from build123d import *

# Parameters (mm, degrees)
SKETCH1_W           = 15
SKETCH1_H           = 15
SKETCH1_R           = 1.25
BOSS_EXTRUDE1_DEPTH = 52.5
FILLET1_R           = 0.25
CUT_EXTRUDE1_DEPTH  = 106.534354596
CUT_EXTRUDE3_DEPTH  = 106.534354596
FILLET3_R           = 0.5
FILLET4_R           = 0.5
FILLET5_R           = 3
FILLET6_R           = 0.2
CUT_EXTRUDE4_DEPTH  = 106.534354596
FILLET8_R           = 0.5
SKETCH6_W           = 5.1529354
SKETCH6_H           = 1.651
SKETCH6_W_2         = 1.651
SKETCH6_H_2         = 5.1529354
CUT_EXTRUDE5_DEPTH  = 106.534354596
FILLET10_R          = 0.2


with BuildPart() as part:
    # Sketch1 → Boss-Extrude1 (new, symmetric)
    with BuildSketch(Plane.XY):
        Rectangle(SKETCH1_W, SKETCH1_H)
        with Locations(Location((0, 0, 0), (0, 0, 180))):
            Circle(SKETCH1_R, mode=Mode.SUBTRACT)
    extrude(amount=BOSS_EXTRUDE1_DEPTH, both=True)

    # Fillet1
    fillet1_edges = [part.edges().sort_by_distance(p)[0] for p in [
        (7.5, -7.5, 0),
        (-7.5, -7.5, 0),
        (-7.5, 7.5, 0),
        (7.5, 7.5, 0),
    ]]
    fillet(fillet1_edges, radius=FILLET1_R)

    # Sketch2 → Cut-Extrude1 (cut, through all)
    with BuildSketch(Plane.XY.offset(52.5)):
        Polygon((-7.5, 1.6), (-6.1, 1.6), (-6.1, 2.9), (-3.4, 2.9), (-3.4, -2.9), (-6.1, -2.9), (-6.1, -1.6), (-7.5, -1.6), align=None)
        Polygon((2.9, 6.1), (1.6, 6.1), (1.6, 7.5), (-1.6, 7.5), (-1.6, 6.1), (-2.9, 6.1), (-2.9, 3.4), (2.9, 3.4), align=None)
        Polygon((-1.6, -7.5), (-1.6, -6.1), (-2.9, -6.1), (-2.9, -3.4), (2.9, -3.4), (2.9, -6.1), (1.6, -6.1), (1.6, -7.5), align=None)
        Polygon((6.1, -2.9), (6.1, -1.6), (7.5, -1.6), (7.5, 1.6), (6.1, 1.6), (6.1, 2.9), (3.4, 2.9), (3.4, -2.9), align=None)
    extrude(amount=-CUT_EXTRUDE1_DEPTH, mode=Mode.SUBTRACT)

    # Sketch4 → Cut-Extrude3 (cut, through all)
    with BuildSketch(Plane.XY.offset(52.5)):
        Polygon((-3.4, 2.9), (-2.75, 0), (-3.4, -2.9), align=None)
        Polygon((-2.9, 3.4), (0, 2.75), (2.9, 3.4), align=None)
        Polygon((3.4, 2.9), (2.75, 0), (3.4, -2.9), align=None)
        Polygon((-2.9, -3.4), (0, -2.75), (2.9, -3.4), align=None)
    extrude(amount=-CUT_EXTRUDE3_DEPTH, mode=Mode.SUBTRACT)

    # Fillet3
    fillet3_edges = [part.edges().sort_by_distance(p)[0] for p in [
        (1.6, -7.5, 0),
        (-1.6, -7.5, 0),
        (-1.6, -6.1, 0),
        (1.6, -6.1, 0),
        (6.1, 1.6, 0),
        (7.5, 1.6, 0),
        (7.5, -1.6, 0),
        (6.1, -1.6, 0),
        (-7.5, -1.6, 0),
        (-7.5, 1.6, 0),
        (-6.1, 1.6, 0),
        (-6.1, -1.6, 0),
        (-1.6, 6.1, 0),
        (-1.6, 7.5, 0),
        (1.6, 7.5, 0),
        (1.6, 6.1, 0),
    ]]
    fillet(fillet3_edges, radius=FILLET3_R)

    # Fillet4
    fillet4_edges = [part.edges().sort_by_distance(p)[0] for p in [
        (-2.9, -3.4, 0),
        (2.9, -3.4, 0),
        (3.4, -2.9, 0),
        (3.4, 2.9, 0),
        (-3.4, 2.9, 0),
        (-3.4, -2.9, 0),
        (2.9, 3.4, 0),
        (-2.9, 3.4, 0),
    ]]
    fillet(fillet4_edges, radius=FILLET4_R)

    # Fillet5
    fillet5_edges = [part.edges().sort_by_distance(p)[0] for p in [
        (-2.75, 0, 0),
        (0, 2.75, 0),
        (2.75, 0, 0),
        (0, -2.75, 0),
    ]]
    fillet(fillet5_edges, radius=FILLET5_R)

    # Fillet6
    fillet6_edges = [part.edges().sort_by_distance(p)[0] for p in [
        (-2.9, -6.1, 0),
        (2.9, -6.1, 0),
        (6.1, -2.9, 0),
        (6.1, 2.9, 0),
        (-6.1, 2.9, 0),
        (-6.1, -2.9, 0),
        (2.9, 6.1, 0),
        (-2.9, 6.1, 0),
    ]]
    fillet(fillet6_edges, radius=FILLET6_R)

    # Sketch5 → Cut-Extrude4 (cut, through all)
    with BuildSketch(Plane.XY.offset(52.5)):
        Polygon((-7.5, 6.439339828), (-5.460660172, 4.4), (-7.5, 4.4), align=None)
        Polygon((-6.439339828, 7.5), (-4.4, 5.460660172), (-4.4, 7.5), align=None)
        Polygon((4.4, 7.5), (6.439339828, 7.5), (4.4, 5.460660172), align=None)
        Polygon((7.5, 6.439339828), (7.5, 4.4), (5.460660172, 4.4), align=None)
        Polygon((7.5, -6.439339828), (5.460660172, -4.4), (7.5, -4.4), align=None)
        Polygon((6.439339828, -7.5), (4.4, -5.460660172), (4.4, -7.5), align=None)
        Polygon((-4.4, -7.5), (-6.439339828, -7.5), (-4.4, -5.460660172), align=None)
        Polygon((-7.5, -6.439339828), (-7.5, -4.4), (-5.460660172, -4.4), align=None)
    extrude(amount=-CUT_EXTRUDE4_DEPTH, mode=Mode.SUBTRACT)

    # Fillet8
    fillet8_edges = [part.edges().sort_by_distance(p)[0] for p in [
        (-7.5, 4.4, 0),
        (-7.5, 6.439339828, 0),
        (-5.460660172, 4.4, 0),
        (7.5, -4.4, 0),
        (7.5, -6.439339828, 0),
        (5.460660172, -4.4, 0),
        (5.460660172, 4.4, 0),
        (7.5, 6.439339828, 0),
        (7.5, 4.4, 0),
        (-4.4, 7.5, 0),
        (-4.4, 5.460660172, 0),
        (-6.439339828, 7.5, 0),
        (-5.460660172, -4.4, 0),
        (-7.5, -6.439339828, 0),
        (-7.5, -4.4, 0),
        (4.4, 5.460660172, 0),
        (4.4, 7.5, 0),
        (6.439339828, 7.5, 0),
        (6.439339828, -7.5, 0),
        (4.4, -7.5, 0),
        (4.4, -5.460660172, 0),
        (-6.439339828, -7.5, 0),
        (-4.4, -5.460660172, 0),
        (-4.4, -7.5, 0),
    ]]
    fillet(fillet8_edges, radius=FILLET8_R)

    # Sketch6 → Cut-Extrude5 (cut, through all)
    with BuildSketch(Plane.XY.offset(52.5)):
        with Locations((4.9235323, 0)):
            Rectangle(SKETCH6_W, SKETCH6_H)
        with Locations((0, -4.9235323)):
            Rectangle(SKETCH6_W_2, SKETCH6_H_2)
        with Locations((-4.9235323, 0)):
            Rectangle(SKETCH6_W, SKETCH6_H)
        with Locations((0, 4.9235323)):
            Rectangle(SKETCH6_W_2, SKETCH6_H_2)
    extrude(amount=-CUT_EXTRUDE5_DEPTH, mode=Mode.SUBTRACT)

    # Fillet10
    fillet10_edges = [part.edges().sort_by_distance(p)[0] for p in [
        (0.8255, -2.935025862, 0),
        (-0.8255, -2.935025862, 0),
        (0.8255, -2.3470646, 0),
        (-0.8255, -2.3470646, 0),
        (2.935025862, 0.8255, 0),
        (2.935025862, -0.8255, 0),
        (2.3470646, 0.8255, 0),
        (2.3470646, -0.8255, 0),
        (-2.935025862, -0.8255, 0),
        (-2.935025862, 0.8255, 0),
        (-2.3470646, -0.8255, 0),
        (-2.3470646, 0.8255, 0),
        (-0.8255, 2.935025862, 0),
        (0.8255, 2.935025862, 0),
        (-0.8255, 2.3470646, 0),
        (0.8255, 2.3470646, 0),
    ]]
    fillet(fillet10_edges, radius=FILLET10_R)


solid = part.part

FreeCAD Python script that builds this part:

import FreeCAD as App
import Part
import Sketcher

V = App.Vector
Q = App.Units.Quantity


def edges_at(feature, points):
    """Names of the edges that pass closest to the given points."""
    edges = feature.Shape.Edges
    near = lambda p: min(range(len(edges)), key=lambda i: edges[i].distToShape(Part.Vertex(*p))[0])
    return sorted({f"Edge{near(p) + 1}" for p in points})


def add_polygon(sketch, points):
    """Adds a closed chain of lines whose ends are joined by coincident constraints."""
    first, n = sketch.GeometryCount, len(points)
    for a, b in zip(points, points[1:] + points[:1]):
        sketch.addGeometry(Part.LineSegment(App.Vector(*a, 0), App.Vector(*b, 0)), False)
    for i in range(n):
        sketch.addConstraint(Sketcher.Constraint("Coincident", first + i, 2, first + (i + 1) % n, 1))

doc = App.newDocument("Part")
params = doc.addObject("Spreadsheet::Sheet", "Params")
for row, (alias, value) in enumerate([
    ("sketch1_diameter", "2.5 mm"),
    ("sketch1_width", "15 mm"),
    ("pad1_length", "105 mm"),
    ("fillet_radius", "0.25 mm"),
    ("sketch2_width", "1.4 mm"),
    ("sketch2_width2", "2.7 mm"),
    ("sketch2_width3", "1.3 mm"),
    ("sketch2_width4", "3.2 mm"),
    ("sketch3_width", "5.8 mm"),
    ("fillet2_radius", "0.5 mm"),
    ("fillet3_radius", "0.5 mm"),
    ("fillet4_radius", "3 mm"),
    ("fillet5_radius", "0.2 mm"),
    ("fillet6_radius", "0.5 mm"),
    ("fillet7_radius", "0.2 mm"),
], start=1):
    params.set(f"A{row}", alias)
    params.set(f"B{row}", "=" + value)
    params.setAlias(f"B{row}", alias)

body = doc.addObject("PartDesign::Body", "Body")

# Sketch on XY plane
sketch1 = doc.addObject("Sketcher::SketchObject", "Sketch")
body.addObject(sketch1)
sketch1.AttachmentSupport = (doc.XY_Plane, [""])
sketch1.MapMode = "FlatFace"
add_polygon(sketch1, [(-7.5, 7.5), (-7.5, -7.5), (7.5, -7.5), (7.5, 7.5)])  # lines 0-3
sketch1.addGeometry(Part.Circle(V(0, 0, 0), V(0, 0, 1), 1.25), False)  # 4
sketch1.addConstraint(Sketcher.Constraint("Vertical", 0))
sketch1.addConstraint(Sketcher.Constraint("Horizontal", 1))
sketch1.addConstraint(Sketcher.Constraint("Vertical", 2))
sketch1.addConstraint(Sketcher.Constraint("Horizontal", 3))
sketch1.addConstraint(Sketcher.Constraint("Coincident", 4, 3, -1, 1))
sketch1.addConstraint(Sketcher.Constraint("Symmetric", 0, 2, 2, 2, -1, 1))
sketch1.addConstraint(Sketcher.Constraint("Equal", 3, 0))
sketch1.addConstraint(Sketcher.Constraint("Diameter", 4, Q("2.5 mm")))
sketch1.addConstraint(Sketcher.Constraint("DistanceX", 1, 1, 1, 2, Q("15 mm")))
sketch1.setExpression("Constraints[11]", "Params.sketch1_diameter")
sketch1.setExpression("Constraints[12]", "Params.sketch1_width")
pad1 = doc.addObject("PartDesign::Pad", "Pad")
body.addObject(pad1)
pad1.Profile = sketch1
pad1.setExpression("Length", "Params.pad1_length")
pad1.Midplane = True
doc.recompute()

fillet = doc.addObject("PartDesign::Fillet", "Fillet")
body.addObject(fillet)
fillet.Base = (pad1, edges_at(pad1, [
    (7.5, -7.5, 0),
    (-7.5, -7.5, 0),
    (-7.5, 7.5, 0),
    (7.5, 7.5, 0),
]))
fillet.setExpression("Radius", "Params.fillet_radius")

# Sketch on XY plane
sketch2 = doc.addObject("Sketcher::SketchObject", "Sketch001")
body.addObject(sketch2)
sketch2.AttachmentSupport = (doc.XY_Plane, [""])
sketch2.MapMode = "FlatFace"
sketch2.AttachmentOffset = App.Placement(V(0, 0, 52.5), App.Rotation())
add_polygon(sketch2, [(-6.1, 1.6), (-7.5, 1.6), (-7.5, -1.6), (-6.1, -1.6), (-6.1, -2.9), (-3.4, -2.9), (-3.4, 2.9), (-6.1, 2.9)])  # lines 0-7
add_polygon(sketch2, [(2.9, 6.1), (1.6, 6.1), (1.6, 7.5), (-1.6, 7.5), (-1.6, 6.1), (-2.9, 6.1), (-2.9, 3.4), (2.9, 3.4)])  # lines 8-15
add_polygon(sketch2, [(-1.6, -6.1), (-1.6, -7.5), (1.6, -7.5), (1.6, -6.1), (2.9, -6.1), (2.9, -3.4), (-2.9, -3.4), (-2.9, -6.1)])  # lines 16-23
add_polygon(sketch2, [(6.1, -2.9), (6.1, -1.6), (7.5, -1.6), (7.5, 1.6), (6.1, 1.6), (6.1, 2.9), (3.4, 2.9), (3.4, -2.9)])  # lines 24-31
sketch2.addConstraint(Sketcher.Constraint("Horizontal", 0))
sketch2.addConstraint(Sketcher.Constraint("Vertical", 1))
sketch2.addConstraint(Sketcher.Constraint("Horizontal", 2))
sketch2.addConstraint(Sketcher.Constraint("Vertical", 3))
sketch2.addConstraint(Sketcher.Constraint("Horizontal", 4))
sketch2.addConstraint(Sketcher.Constraint("Vertical", 5))
sketch2.addConstraint(Sketcher.Constraint("Horizontal", 6))
sketch2.addConstraint(Sketcher.Constraint("Vertical", 7))
sketch2.addConstraint(Sketcher.Constraint("Horizontal", 8))
sketch2.addConstraint(Sketcher.Constraint("Vertical", 9))
sketch2.addConstraint(Sketcher.Constraint("Horizontal", 10))
sketch2.addConstraint(Sketcher.Constraint("Vertical", 11))
sketch2.addConstraint(Sketcher.Constraint("Horizontal", 12))
sketch2.addConstraint(Sketcher.Constraint("Vertical", 13))
sketch2.addConstraint(Sketcher.Constraint("Horizontal", 14))
sketch2.addConstraint(Sketcher.Constraint("Vertical", 15))
sketch2.addConstraint(Sketcher.Constraint("Vertical", 16))
sketch2.addConstraint(Sketcher.Constraint("Horizontal", 17))
sketch2.addConstraint(Sketcher.Constraint("Vertical", 18))
sketch2.addConstraint(Sketcher.Constraint("Horizontal", 19))
sketch2.addConstraint(Sketcher.Constraint("Vertical", 20))
sketch2.addConstraint(Sketcher.Constraint("Horizontal", 21))
sketch2.addConstraint(Sketcher.Constraint("Vertical", 22))
sketch2.addConstraint(Sketcher.Constraint("Horizontal", 23))
sketch2.addConstraint(Sketcher.Constraint("Vertical", 24))
sketch2.addConstraint(Sketcher.Constraint("Horizontal", 25))
sketch2.addConstraint(Sketcher.Constraint("Vertical", 26))
sketch2.addConstraint(Sketcher.Constraint("Horizontal", 27))
sketch2.addConstraint(Sketcher.Constraint("Vertical", 28))
sketch2.addConstraint(Sketcher.Constraint("Horizontal", 29))
sketch2.addConstraint(Sketcher.Constraint("Vertical", 30))
sketch2.addConstraint(Sketcher.Constraint("Horizontal", 31))
sketch2.addConstraint(Sketcher.Constraint("Symmetric", 9, 2, 16, 2, -1, 1))
sketch2.addConstraint(Sketcher.Constraint("Symmetric", 11, 2, 18, 2, -1, 1))
sketch2.addConstraint(Sketcher.Constraint("Symmetric", 13, 2, 20, 2, -1, 1))
sketch2.addConstraint(Sketcher.Constraint("Symmetric", 15, 2, 22, 2, -1, 1))
sketch2.addConstraint(Sketcher.Constraint("Symmetric", 7, 2, 24, 2, -1, 1))
sketch2.addConstraint(Sketcher.Constraint("Symmetric", 1, 2, 26, 2, -1, 1))
sketch2.addConstraint(Sketcher.Constraint("Symmetric", 3, 2, 28, 2, -1, 1))
sketch2.addConstraint(Sketcher.Constraint("Symmetric", 5, 2, 30, 2, -1, 1))
sketch2.addConstraint(Sketcher.Constraint("Symmetric", 8, 2, 11, 2, -2))
sketch2.addConstraint(Sketcher.Constraint("Symmetric", 2, 2, 24, 2, -2))
sketch2.addConstraint(Sketcher.Constraint("Horizontal", 6, 2, 28, 2))
sketch2.addConstraint(Sketcher.Constraint("Vertical", 15, 2, 19, 2))
sketch2.addConstraint(Sketcher.Constraint("Equal", 17, 1))
sketch2.addConstraint(Sketcher.Constraint("Equal", 23, 3))
sketch2.addConstraint(Sketcher.Constraint("Equal", 27, 9))
sketch2.addConstraint(Sketcher.Constraint("Equal", 31, 13))
sketch2.addConstraint(Sketcher.Constraint("DistanceX", 0, 2, 0, 1, Q("1.4 mm")))
sketch2.addConstraint(Sketcher.Constraint("DistanceX", 4, 1, 4, 2, Q("2.7 mm")))
sketch2.addConstraint(Sketcher.Constraint("DistanceX", 8, 2, 8, 1, Q("1.3 mm")))
sketch2.addConstraint(Sketcher.Constraint("DistanceX", 10, 2, 10, 1, Q("3.2 mm")))
sketch2.addConstraint(Sketcher.Constraint("DistanceX", 5, 2, 8, 2, Q("5 mm")))
sketch2.addConstraint(Sketcher.Constraint("DistanceY", 4, 2, 8, 2, Q("9 mm")))
sketch2.setExpression("Constraints[80]", "Params.sketch2_width")
sketch2.setExpression("Constraints[81]", "Params.sketch2_width2")
sketch2.setExpression("Constraints[82]", "Params.sketch2_width3")
sketch2.setExpression("Constraints[83]", "Params.sketch2_width4")
pocket1 = doc.addObject("PartDesign::Pocket", "Pocket")
body.addObject(pocket1)
pocket1.Profile = sketch2
pocket1.Type = "ThroughAll"

# Sketch on XY plane
sketch3 = doc.addObject("Sketcher::SketchObject", "Sketch002")
body.addObject(sketch3)
sketch3.AttachmentSupport = (doc.XY_Plane, [""])
sketch3.MapMode = "FlatFace"
sketch3.AttachmentOffset = App.Placement(V(0, 0, 52.5), App.Rotation())
add_polygon(sketch3, [(-2.75, 0), (-3.4, 2.9), (-3.4, -2.9)])  # lines 0-2
add_polygon(sketch3, [(-2.9, 3.4), (0, 2.75), (2.9, 3.4)])  # lines 3-5
add_polygon(sketch3, [(3.4, 2.9), (2.75, 0), (3.4, -2.9)])  # lines 6-8
add_polygon(sketch3, [(0, -2.75), (-2.9, -3.4), (2.9, -3.4)])  # lines 9-11
sketch3.addConstraint(Sketcher.Constraint("Vertical", 1))
sketch3.addConstraint(Sketcher.Constraint("Horizontal", 5))
sketch3.addConstraint(Sketcher.Constraint("Vertical", 8))
sketch3.addConstraint(Sketcher.Constraint("Horizontal", 10))
sketch3.addConstraint(Sketcher.Constraint("Symmetric", 2, 2, 6, 2, -1, 1))
sketch3.addConstraint(Sketcher.Constraint("Symmetric", 0, 2, 7, 2, -1, 1))
sketch3.addConstraint(Sketcher.Constraint("Symmetric", 4, 2, 9, 2, -1, 1))
sketch3.addConstraint(Sketcher.Constraint("Symmetric", 3, 2, 11, 2, -1, 1))
sketch3.addConstraint(Sketcher.Constraint("PointOnObject", 2, 2, -1))
sketch3.addConstraint(Sketcher.Constraint("PointOnObject", 3, 2, -2))
sketch3.addConstraint(Sketcher.Constraint("Perpendicular", 2, 3))
sketch3.addConstraint(Sketcher.Constraint("Perpendicular", 0, 4))
sketch3.addConstraint(Sketcher.Constraint("Perpendicular", 3, 6))
sketch3.addConstraint(Sketcher.Constraint("Perpendicular", 6, 11))
sketch3.addConstraint(Sketcher.Constraint("Horizontal", 1, 2, 7, 2))
sketch3.addConstraint(Sketcher.Constraint("Equal", 10, 1))
sketch3.addConstraint(Sketcher.Constraint("DistanceX", 5, 2, 5, 1, Q("5.8 mm")))
sketch3.addConstraint(Sketcher.Constraint("DistanceX", 0, 2, -1, 1, Q("3.4 mm")))
sketch3.addConstraint(Sketcher.Constraint("DistanceY", -1, 1, 4, 2, Q("3.4 mm")))
sketch3.addConstraint(Sketcher.Constraint("DistanceX", 2, 2, 6, 2, Q("5.5 mm")))
sketch3.setExpression("Constraints[28]", "Params.sketch3_width")
pocket2 = doc.addObject("PartDesign::Pocket", "Pocket001")
body.addObject(pocket2)
pocket2.Profile = sketch3
pocket2.Type = "ThroughAll"
doc.recompute()

fillet2 = doc.addObject("PartDesign::Fillet", "Fillet001")
body.addObject(fillet2)
fillet2.Base = (pocket2, edges_at(pocket2, [
    (1.6, -7.5, 0),
    (-1.6, -7.5, 0),
    (-1.6, -6.1, 0),
    (1.6, -6.1, 0),
    (6.1, 1.6, 0),
    (7.5, 1.6, 0),
    (7.5, -1.6, 0),
    (6.1, -1.6, 0),
    (-7.5, -1.6, 0),
    (-7.5, 1.6, 0),
    (-6.1, 1.6, 0),
    (-6.1, -1.6, 0),
    (-1.6, 6.1, 0),
    (-1.6, 7.5, 0),
    (1.6, 7.5, 0),
    (1.6, 6.1, 0),
]))
fillet2.setExpression("Radius", "Params.fillet2_radius")
doc.recompute()

fillet3 = doc.addObject("PartDesign::Fillet", "Fillet002")
body.addObject(fillet3)
fillet3.Base = (fillet2, edges_at(fillet2, [
    (-2.9, -3.4, 0),
    (2.9, -3.4, 0),
    (3.4, -2.9, 0),
    (3.4, 2.9, 0),
    (-3.4, 2.9, 0),
    (-3.4, -2.9, 0),
    (2.9, 3.4, 0),
    (-2.9, 3.4, 0),
]))
fillet3.setExpression("Radius", "Params.fillet3_radius")
doc.recompute()

fillet4 = doc.addObject("PartDesign::Fillet", "Fillet003")
body.addObject(fillet4)
fillet4.Base = (fillet3, edges_at(fillet3, [
    (-2.75, 0, 0),
    (0, 2.75, 0),
    (2.75, 0, 0),
    (0, -2.75, 0),
]))
fillet4.setExpression("Radius", "Params.fillet4_radius")
doc.recompute()

fillet5 = doc.addObject("PartDesign::Fillet", "Fillet004")
body.addObject(fillet5)
fillet5.Base = (fillet4, edges_at(fillet4, [
    (-2.9, -6.1, 0),
    (2.9, -6.1, 0),
    (6.1, -2.9, 0),
    (6.1, 2.9, 0),
    (-6.1, 2.9, 0),
    (-6.1, -2.9, 0),
    (2.9, 6.1, 0),
    (-2.9, 6.1, 0),
]))
fillet5.setExpression("Radius", "Params.fillet5_radius")

# Sketch on XY plane
sketch4 = doc.addObject("Sketcher::SketchObject", "Sketch003")
body.addObject(sketch4)
sketch4.AttachmentSupport = (doc.XY_Plane, [""])
sketch4.MapMode = "FlatFace"
sketch4.AttachmentOffset = App.Placement(V(0, 0, 52.5), App.Rotation())
add_polygon(sketch4, [(-5.46066, 4.4), (-7.5, 6.43934), (-7.5, 4.4)])  # lines 0-2
add_polygon(sketch4, [(-6.43934, 7.5), (-4.4, 5.46066), (-4.4, 7.5)])  # lines 3-5
add_polygon(sketch4, [(6.43934, 7.5), (4.4, 7.5), (4.4, 5.46066)])  # lines 6-8
add_polygon(sketch4, [(7.5, 4.4), (7.5, 6.43934), (5.46066, 4.4)])  # lines 9-11
add_polygon(sketch4, [(5.46066, -4.4), (7.5, -6.43934), (7.5, -4.4)])  # lines 12-14
add_polygon(sketch4, [(6.43934, -7.5), (4.4, -5.46066), (4.4, -7.5)])  # lines 15-17
add_polygon(sketch4, [(-6.43934, -7.5), (-4.4, -7.5), (-4.4, -5.46066)])  # lines 18-20
add_polygon(sketch4, [(-7.5, -4.4), (-7.5, -6.43934), (-5.46066, -4.4)])  # lines 21-23
sketch4.addConstraint(Sketcher.Constraint("Vertical", 1))
sketch4.addConstraint(Sketcher.Constraint("Horizontal", 2))
sketch4.addConstraint(Sketcher.Constraint("Vertical", 4))
sketch4.addConstraint(Sketcher.Constraint("Horizontal", 5))
sketch4.addConstraint(Sketcher.Constraint("Horizontal", 6))
sketch4.addConstraint(Sketcher.Constraint("Vertical", 7))
sketch4.addConstraint(Sketcher.Constraint("Vertical", 9))
sketch4.addConstraint(Sketcher.Constraint("Horizontal", 11))
sketch4.addConstraint(Sketcher.Constraint("Vertical", 13))
sketch4.addConstraint(Sketcher.Constraint("Horizontal", 14))
sketch4.addConstraint(Sketcher.Constraint("Vertical", 16))
sketch4.addConstraint(Sketcher.Constraint("Horizontal", 17))
sketch4.addConstraint(Sketcher.Constraint("Horizontal", 18))
sketch4.addConstraint(Sketcher.Constraint("Vertical", 19))
sketch4.addConstraint(Sketcher.Constraint("Vertical", 21))
sketch4.addConstraint(Sketcher.Constraint("Horizontal", 23))
sketch4.addConstraint(Sketcher.Constraint("Symmetric", 0, 2, 12, 2, -1, 1))
sketch4.addConstraint(Sketcher.Constraint("Symmetric", 2, 2, 14, 2, -1, 1))
sketch4.addConstraint(Sketcher.Constraint("Symmetric", 3, 2, 15, 2, -1, 1))
sketch4.addConstraint(Sketcher.Constraint("Symmetric", 5, 2, 17, 2, -1, 1))
sketch4.addConstraint(Sketcher.Constraint("Symmetric", 6, 2, 18, 2, -1, 1))
sketch4.addConstraint(Sketcher.Constraint("Symmetric", 9, 2, 21, 2, -1, 1))
sketch4.addConstraint(Sketcher.Constraint("Symmetric", 10, 2, 22, 2, -1, 1))
sketch4.addConstraint(Sketcher.Constraint("Symmetric", 4, 2, 6, 2, -2))
sketch4.addConstraint(Sketcher.Constraint("Symmetric", 0, 2, 9, 2, -2))
sketch4.addConstraint(Sketcher.Constraint("Symmetric", 2, 2, 10, 2, -2))
sketch4.addConstraint(Sketcher.Constraint("Parallel", 0, 3))
sketch4.addConstraint(Sketcher.Constraint("Perpendicular", 3, 8))
sketch4.addConstraint(Sketcher.Constraint("Parallel", 8, 10))
sketch4.addConstraint(Sketcher.Constraint("Perpendicular", 15, 20))
sketch4.addConstraint(Sketcher.Constraint("Horizontal", 3, 2, 7, 2))
sketch4.addConstraint(Sketcher.Constraint("Horizontal", 15, 2, 19, 2))
sketch4.addConstraint(Sketcher.Constraint("Equal", 2, 5))
sketch4.addConstraint(Sketcher.Constraint("DistanceX", 0, 2, -1, 1, Q("7.5 mm")))
sketch4.addConstraint(Sketcher.Constraint("DistanceY", -1, 1, 1, 2, Q("4.4 mm")))
sketch4.addConstraint(Sketcher.Constraint("DistanceX", 3, 2, -1, 1, Q("4.4 mm")))
sketch4.addConstraint(Sketcher.Constraint("DistanceY", -1, 1, 4, 2, Q("7.5 mm")))
sketch4.addConstraint(Sketcher.Constraint("DistanceX", 2, 1, 2, 2, Q("2.03934 mm")))
pocket3 = doc.addObject("PartDesign::Pocket", "Pocket002")
body.addObject(pocket3)
pocket3.Profile = sketch4
pocket3.Type = "ThroughAll"
doc.recompute()

fillet6 = doc.addObject("PartDesign::Fillet", "Fillet005")
body.addObject(fillet6)
fillet6.Base = (pocket3, edges_at(pocket3, [
    (-7.5, 4.4, 0),
    (-7.5, 6.439, 0),
    (-5.461, 4.4, 0),
    (7.5, -4.4, 0),
    (7.5, -6.439, 0),
    (5.461, -4.4, 0),
    (5.461, 4.4, 0),
    (7.5, 6.439, 0),
    (7.5, 4.4, 0),
    (-4.4, 7.5, 0),
    (-4.4, 5.461, 0),
    (-6.439, 7.5, 0),
    (-5.461, -4.4, 0),
    (-7.5, -6.439, 0),
    (-7.5, -4.4, 0),
    (4.4, 5.461, 0),
    (4.4, 7.5, 0),
    (6.439, 7.5, 0),
    (6.439, -7.5, 0),
    (4.4, -7.5, 0),
    (4.4, -5.461, 0),
    (-6.439, -7.5, 0),
    (-4.4, -5.461, 0),
    (-4.4, -7.5, 0),
]))
fillet6.setExpression("Radius", "Params.fillet6_radius")

# Sketch on XY plane
sketch5 = doc.addObject("Sketcher::SketchObject", "Sketch004")
body.addObject(sketch5)
sketch5.AttachmentSupport = (doc.XY_Plane, [""])
sketch5.MapMode = "FlatFace"
sketch5.AttachmentOffset = App.Placement(V(0, 0, 52.5), App.Rotation())
add_polygon(sketch5, [(2.347065, 0.8255), (2.347065, -0.8255), (7.5, -0.8255), (7.5, 0.8255)])  # lines 0-3
add_polygon(sketch5, [(-0.8255, -2.347065), (-0.8255, -7.5), (0.8255, -7.5), (0.8255, -2.347065)])  # lines 4-7
add_polygon(sketch5, [(-7.5, 0.8255), (-7.5, -0.8255), (-2.347065, -0.8255), (-2.347065, 0.8255)])  # lines 8-11
add_polygon(sketch5, [(-0.8255, 7.5), (-0.8255, 2.347065), (0.8255, 2.347065), (0.8255, 7.5)])  # lines 12-15
sketch5.addConstraint(Sketcher.Constraint("Vertical", 0))
sketch5.addConstraint(Sketcher.Constraint("Horizontal", 1))
sketch5.addConstraint(Sketcher.Constraint("Vertical", 2))
sketch5.addConstraint(Sketcher.Constraint("Horizontal", 3))
sketch5.addConstraint(Sketcher.Constraint("Vertical", 4))
sketch5.addConstraint(Sketcher.Constraint("Horizontal", 5))
sketch5.addConstraint(Sketcher.Constraint("Vertical", 6))
sketch5.addConstraint(Sketcher.Constraint("Horizontal", 7))
sketch5.addConstraint(Sketcher.Constraint("Vertical", 8))
sketch5.addConstraint(Sketcher.Constraint("Horizontal", 9))
sketch5.addConstraint(Sketcher.Constraint("Vertical", 10))
sketch5.addConstraint(Sketcher.Constraint("Horizontal", 11))
sketch5.addConstraint(Sketcher.Constraint("Vertical", 12))
sketch5.addConstraint(Sketcher.Constraint("Horizontal", 13))
sketch5.addConstraint(Sketcher.Constraint("Vertical", 14))
sketch5.addConstraint(Sketcher.Constraint("Horizontal", 15))
sketch5.addConstraint(Sketcher.Constraint("Symmetric", 2, 2, 8, 2, -1, 1))
sketch5.addConstraint(Sketcher.Constraint("Symmetric", 0, 2, 10, 2, -1, 1))
sketch5.addConstraint(Sketcher.Constraint("Symmetric", 6, 2, 12, 2, -1, 1))
sketch5.addConstraint(Sketcher.Constraint("Symmetric", 4, 2, 14, 2, -1, 1))
sketch5.addConstraint(Sketcher.Constraint("Horizontal", 1, 2, 8, 2))
sketch5.addConstraint(Sketcher.Constraint("Vertical", 7, 2, 12, 2))
sketch5.addConstraint(Sketcher.Constraint("Equal", 15, 0))
sketch5.addConstraint(Sketcher.Constraint("Equal", 11, 4))
sketch5.addConstraint(Sketcher.Constraint("DistanceX", -1, 1, 1, 2, Q("7.5 mm")))
sketch5.addConstraint(Sketcher.Constraint("DistanceY", 4, 2, -1, 1, Q("7.5 mm")))
sketch5.addConstraint(Sketcher.Constraint("DistanceX", 5, 1, 5, 2, Q("1.651 mm")))
sketch5.addConstraint(Sketcher.Constraint("DistanceX", 1, 1, 1, 2, Q("5.152935 mm")))
pocket4 = doc.addObject("PartDesign::Pocket", "Pocket003")
body.addObject(pocket4)
pocket4.Profile = sketch5
pocket4.Type = "ThroughAll"
doc.recompute()

fillet7 = doc.addObject("PartDesign::Fillet", "Fillet006")
body.addObject(fillet7)
fillet7.Base = (pocket4, edges_at(pocket4, [
    (0.826, -2.935, 0),
    (-0.826, -2.935, 0),
    (0.826, -2.347, 0),
    (-0.826, -2.347, 0),
    (2.935, 0.826, 0),
    (2.935, -0.826, 0),
    (2.347, 0.826, 0),
    (2.347, -0.826, 0),
    (-2.935, -0.826, 0),
    (-2.935, 0.826, 0),
    (-2.347, -0.826, 0),
    (-2.347, 0.826, 0),
    (-0.826, 2.935, 0),
    (0.826, 2.935, 0),
    (-0.826, 2.347, 0),
    (0.826, 2.347, 0),
]))
fillet7.setExpression("Radius", "Params.fillet7_radius")

doc.recompute()
